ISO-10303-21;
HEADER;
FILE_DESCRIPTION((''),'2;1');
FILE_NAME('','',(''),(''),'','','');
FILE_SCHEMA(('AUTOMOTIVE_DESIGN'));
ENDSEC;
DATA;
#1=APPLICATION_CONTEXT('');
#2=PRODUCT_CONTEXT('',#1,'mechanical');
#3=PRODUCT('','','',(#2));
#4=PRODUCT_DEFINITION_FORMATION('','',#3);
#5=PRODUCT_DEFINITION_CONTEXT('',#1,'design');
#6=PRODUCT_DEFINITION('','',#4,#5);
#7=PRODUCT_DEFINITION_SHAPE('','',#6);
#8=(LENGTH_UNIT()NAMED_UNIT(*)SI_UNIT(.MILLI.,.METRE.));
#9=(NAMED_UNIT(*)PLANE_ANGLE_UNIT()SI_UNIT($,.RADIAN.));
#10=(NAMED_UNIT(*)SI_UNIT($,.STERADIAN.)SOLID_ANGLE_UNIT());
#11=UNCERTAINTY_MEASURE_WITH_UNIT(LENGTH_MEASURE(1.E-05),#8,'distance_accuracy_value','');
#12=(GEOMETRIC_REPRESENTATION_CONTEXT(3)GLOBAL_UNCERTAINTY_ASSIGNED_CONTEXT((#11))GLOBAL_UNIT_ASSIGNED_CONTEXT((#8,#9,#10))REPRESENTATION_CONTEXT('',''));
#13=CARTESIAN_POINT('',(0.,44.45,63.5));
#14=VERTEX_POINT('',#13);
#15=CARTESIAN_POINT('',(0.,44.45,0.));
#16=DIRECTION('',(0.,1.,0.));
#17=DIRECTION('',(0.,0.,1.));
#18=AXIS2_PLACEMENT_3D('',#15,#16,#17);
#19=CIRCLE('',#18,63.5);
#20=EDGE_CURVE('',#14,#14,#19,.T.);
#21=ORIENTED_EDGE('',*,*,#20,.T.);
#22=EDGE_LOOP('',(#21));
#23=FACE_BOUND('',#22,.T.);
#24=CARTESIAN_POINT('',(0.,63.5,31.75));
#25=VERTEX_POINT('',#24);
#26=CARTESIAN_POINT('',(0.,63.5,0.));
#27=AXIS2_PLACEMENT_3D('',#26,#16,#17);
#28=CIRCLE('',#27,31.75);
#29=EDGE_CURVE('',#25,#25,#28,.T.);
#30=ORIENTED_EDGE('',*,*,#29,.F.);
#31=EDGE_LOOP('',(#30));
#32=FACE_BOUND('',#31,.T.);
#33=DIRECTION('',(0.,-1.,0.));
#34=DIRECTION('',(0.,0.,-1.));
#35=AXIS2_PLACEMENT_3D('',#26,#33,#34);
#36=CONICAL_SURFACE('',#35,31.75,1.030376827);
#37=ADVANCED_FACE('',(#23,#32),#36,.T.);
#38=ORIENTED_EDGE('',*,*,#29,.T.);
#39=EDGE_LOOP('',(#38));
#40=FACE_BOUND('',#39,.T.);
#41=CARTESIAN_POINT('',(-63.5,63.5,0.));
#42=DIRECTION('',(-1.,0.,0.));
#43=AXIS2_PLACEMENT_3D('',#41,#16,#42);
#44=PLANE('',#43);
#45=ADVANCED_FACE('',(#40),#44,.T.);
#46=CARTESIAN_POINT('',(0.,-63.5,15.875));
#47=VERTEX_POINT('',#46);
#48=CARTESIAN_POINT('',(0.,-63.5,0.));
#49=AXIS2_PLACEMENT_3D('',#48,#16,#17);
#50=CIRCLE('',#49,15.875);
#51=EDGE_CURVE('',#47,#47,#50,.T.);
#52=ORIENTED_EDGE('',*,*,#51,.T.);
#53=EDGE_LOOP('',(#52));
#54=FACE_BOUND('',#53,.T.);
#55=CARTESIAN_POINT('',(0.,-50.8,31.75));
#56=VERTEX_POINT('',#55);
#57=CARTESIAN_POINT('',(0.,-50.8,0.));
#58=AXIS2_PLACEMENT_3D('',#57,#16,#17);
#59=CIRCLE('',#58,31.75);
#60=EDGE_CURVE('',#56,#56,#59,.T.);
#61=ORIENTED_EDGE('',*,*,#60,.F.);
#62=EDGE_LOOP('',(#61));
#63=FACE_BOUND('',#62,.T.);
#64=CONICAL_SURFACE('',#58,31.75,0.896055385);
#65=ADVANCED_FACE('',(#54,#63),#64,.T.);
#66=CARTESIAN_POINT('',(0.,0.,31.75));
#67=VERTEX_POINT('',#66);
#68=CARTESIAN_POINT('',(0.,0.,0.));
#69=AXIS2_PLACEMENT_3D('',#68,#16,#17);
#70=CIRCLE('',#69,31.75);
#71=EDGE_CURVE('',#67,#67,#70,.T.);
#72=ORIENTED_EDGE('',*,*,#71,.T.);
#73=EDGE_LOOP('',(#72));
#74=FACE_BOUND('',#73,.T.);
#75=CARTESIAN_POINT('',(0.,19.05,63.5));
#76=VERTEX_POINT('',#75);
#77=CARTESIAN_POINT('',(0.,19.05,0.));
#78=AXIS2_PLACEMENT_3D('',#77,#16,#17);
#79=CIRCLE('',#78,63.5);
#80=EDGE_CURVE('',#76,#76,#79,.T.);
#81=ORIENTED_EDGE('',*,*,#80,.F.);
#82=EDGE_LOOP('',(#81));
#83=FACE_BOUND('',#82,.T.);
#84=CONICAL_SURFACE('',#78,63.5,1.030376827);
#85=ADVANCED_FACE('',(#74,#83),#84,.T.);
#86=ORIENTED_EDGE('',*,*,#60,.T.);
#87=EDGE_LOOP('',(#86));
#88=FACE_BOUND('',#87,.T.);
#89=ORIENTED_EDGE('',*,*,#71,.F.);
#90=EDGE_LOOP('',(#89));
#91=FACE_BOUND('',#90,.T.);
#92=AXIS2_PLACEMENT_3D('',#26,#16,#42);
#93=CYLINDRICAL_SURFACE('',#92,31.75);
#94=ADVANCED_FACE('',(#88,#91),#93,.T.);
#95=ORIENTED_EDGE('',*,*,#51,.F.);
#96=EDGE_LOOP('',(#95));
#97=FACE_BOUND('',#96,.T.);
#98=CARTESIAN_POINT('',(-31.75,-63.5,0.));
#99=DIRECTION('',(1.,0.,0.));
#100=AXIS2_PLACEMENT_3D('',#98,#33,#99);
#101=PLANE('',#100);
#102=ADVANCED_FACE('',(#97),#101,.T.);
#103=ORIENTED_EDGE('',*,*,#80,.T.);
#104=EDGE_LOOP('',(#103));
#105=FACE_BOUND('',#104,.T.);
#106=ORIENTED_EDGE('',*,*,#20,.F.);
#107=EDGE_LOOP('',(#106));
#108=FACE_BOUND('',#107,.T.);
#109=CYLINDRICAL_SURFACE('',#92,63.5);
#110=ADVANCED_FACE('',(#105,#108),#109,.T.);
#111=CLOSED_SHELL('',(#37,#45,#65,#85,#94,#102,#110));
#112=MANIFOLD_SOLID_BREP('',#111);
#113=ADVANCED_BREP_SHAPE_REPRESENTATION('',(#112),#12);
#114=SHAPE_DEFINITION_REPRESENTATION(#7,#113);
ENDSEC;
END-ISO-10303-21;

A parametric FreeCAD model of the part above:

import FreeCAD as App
import Part
import Sketcher

V = App.Vector
Q = App.Units.Quantity

doc = App.newDocument("Part")
body = doc.addObject("PartDesign::Body", "Body")

# Sketch on XY plane
sketch1 = doc.addObject("Sketcher::SketchObject", "Sketch")
body.addObject(sketch1)
sketch1.AttachmentSupport = (doc.XY_Plane, [""])
sketch1.MapMode = "FlatFace"
sketch1.addGeometry(Part.LineSegment(V(0, -63.5, 0), V(0, 63.5, 0)), False)
sketch1.addGeometry(Part.LineSegment(V(0, 63.5, 0), V(-63.5, 63.5, 0)), False)
sketch1.addGeometry(Part.LineSegment(V(-63.5, 63.5, 0), V(-63.5, 0, 0)), False)
sketch1.addGeometry(Part.LineSegment(V(-63.5, 0, 0), V(-31.75, 0, 0)), False)
sketch1.addGeometry(Part.LineSegment(V(-31.75, 0, 0), V(-31.75, -63.5, 0)), False)
sketch1.addGeometry(Part.LineSegment(V(-31.75, -63.5, 0), V(0, -63.5, 0)), False)
sketch1.addConstraint(Sketcher.Constraint("Coincident", 0, 2, 1, 1))
sketch1.addConstraint(Sketcher.Constraint("Coincident", 1, 2, 2, 1))
sketch1.addConstraint(Sketcher.Constraint("Coincident", 2, 2, 3, 1))
sketch1.addConstraint(Sketcher.Constraint("Coincident", 3, 2, 4, 1))
sketch1.addConstraint(Sketcher.Constraint("Coincident", 4, 2, 5, 1))
sketch1.addConstraint(Sketcher.Constraint("Coincident", 5, 2, 0, 1))
sketch1.addConstraint(Sketcher.Constraint("Vertical", 0))
sketch1.addConstraint(Sketcher.Constraint("Horizontal", 1))
sketch1.addConstraint(Sketcher.Constraint("Vertical", 2))
sketch1.addConstraint(Sketcher.Constraint("Horizontal", 3))
sketch1.addConstraint(Sketcher.Constraint("Vertical", 4))
sketch1.addConstraint(Sketcher.Constraint("Horizontal", 5))
sketch1.addConstraint(Sketcher.Constraint("Symmetric", 0, 2, 5, 2, -1, 1))
sketch1.addConstraint(Sketcher.Constraint("PointOnObject", 2, 2, -1))
sketch1.addConstraint(Sketcher.Constraint("Equal", 3, 5))
sketch1.addConstraint(Sketcher.Constraint("Equal", 1, 2))
sketch1.addConstraint(Sketcher.Constraint("DistanceY", 0, 1, 0, 2, Q("5 in")))
revolution = doc.addObject("PartDesign::Revolution", "Revolution")
body.addObject(revolution)
revolution.Profile = sketch1
revolution.ReferenceAxis = (sketch1, ["V_Axis"])
revolution.Angle = 360

# Sketch on YZ plane
sketch2 = doc.addObject("Sketcher::SketchObject", "Sketch001")
body.addObject(sketch2)
sketch2.AttachmentSupport = (doc.YZ_Plane, [""])
sketch2.MapMode = "FlatFace"
sketch2.addGeometry(Part.LineSegment(V(44.45, 63.5, 0), V(63.5, 31.75, 0)), False)
sketch2.addGeometry(Part.LineSegment(V(63.5, 31.75, 0), V(63.5, 63.5, 0)), False)
sketch2.addGeometry(Part.LineSegment(V(63.5, 63.5, 0), V(44.45, 63.5, 0)), False)
sketch2.addGeometry(Part.LineSegment(V(19.05, 63.5, 0), V(0, 63.5, 0)), False)
sketch2.addGeometry(Part.LineSegment(V(0, 63.5, 0), V(0, 31.75, 0)), False)
sketch2.addGeometry(Part.LineSegment(V(0, 31.75, 0), V(19.05, 63.5, 0)), False)
sketch2.addGeometry(Part.LineSegment(V(-63.5, 15.875, 0), V(-50.8, 31.75, 0)), False)
sketch2.addGeometry(Part.LineSegment(V(-50.8, 31.75, 0), V(-63.5, 31.75, 0)), False)
sketch2.addGeometry(Part.LineSegment(V(-63.5, 31.75, 0), V(-63.5, 15.875, 0)), False)
sketch2.addConstraint(Sketcher.Constraint("Coincident", 0, 2, 1, 1))
sketch2.addConstraint(Sketcher.Constraint("Coincident", 1, 2, 2, 1))
sketch2.addConstraint(Sketcher.Constraint("Coincident", 2, 2, 0, 1))
sketch2.addConstraint(Sketcher.Constraint("Coincident", 3, 2, 4, 1))
sketch2.addConstraint(Sketcher.Constraint("Coincident", 4, 2, 5, 1))
sketch2.addConstraint(Sketcher.Constraint("Coincident", 5, 2, 3, 1))
sketch2.addConstraint(Sketcher.Constraint("Coincident", 6, 2, 7, 1))
sketch2.addConstraint(Sketcher.Constraint("Coincident", 7, 2, 8, 1))
sketch2.addConstraint(Sketcher.Constraint("Coincident", 8, 2, 6, 1))
sketch2.addConstraint(Sketcher.Constraint("Vertical", 1))
sketch2.addConstraint(Sketcher.Constraint("Horizontal", 2))
sketch2.addConstraint(Sketcher.Constraint("Horizontal", 3))
sketch2.addConstraint(Sketcher.Constraint("Vertical", 4))
sketch2.addConstraint(Sketcher.Constraint("Horizontal", 7))
sketch2.addConstraint(Sketcher.Constraint("Vertical", 8))
sketch2.addConstraint(Sketcher.Constraint("Symmetric", 0, 2, 7, 2, -2))
sketch2.addConstraint(Sketcher.Constraint("PointOnObject", 3, 2, -2))
sketch2.addConstraint(Sketcher.Constraint("Horizontal", 2, 2, 3, 2))
sketch2.addConstraint(Sketcher.Constraint("Horizontal", 0, 2, 4, 2))
sketch2.addConstraint(Sketcher.Constraint("Equal", 2, 3))
sketch2.addConstraint(Sketcher.Constraint("DistanceX", 7, 2, 7, 1, Q("0.5 in")))
sketch2.addConstraint(Sketcher.Constraint("DistanceX", 6, 2, -1, 1, Q("2 in")))
sketch2.addConstraint(Sketcher.Constraint("DistanceX", 5, 2, 2, 2, Q("1 in")))
sketch2.addConstraint(Sketcher.Constraint("DistanceY", 1, 1, 1, 2, Q("1.25 in")))
sketch2.addConstraint(Sketcher.Constraint("DistanceY", -1, 1, 1, 2, Q("2.5 in")))
sketch2.addConstraint(Sketcher.Constraint("DistanceY", 8, 2, 8, 1, Q("0.625 in")))
groove = doc.addObject("PartDesign::Groove", "Groove")
body.addObject(groove)
groove.Profile = sketch2
groove.ReferenceAxis = (sketch2, ["H_Axis"])
groove.Angle = 360

doc.recompute()
